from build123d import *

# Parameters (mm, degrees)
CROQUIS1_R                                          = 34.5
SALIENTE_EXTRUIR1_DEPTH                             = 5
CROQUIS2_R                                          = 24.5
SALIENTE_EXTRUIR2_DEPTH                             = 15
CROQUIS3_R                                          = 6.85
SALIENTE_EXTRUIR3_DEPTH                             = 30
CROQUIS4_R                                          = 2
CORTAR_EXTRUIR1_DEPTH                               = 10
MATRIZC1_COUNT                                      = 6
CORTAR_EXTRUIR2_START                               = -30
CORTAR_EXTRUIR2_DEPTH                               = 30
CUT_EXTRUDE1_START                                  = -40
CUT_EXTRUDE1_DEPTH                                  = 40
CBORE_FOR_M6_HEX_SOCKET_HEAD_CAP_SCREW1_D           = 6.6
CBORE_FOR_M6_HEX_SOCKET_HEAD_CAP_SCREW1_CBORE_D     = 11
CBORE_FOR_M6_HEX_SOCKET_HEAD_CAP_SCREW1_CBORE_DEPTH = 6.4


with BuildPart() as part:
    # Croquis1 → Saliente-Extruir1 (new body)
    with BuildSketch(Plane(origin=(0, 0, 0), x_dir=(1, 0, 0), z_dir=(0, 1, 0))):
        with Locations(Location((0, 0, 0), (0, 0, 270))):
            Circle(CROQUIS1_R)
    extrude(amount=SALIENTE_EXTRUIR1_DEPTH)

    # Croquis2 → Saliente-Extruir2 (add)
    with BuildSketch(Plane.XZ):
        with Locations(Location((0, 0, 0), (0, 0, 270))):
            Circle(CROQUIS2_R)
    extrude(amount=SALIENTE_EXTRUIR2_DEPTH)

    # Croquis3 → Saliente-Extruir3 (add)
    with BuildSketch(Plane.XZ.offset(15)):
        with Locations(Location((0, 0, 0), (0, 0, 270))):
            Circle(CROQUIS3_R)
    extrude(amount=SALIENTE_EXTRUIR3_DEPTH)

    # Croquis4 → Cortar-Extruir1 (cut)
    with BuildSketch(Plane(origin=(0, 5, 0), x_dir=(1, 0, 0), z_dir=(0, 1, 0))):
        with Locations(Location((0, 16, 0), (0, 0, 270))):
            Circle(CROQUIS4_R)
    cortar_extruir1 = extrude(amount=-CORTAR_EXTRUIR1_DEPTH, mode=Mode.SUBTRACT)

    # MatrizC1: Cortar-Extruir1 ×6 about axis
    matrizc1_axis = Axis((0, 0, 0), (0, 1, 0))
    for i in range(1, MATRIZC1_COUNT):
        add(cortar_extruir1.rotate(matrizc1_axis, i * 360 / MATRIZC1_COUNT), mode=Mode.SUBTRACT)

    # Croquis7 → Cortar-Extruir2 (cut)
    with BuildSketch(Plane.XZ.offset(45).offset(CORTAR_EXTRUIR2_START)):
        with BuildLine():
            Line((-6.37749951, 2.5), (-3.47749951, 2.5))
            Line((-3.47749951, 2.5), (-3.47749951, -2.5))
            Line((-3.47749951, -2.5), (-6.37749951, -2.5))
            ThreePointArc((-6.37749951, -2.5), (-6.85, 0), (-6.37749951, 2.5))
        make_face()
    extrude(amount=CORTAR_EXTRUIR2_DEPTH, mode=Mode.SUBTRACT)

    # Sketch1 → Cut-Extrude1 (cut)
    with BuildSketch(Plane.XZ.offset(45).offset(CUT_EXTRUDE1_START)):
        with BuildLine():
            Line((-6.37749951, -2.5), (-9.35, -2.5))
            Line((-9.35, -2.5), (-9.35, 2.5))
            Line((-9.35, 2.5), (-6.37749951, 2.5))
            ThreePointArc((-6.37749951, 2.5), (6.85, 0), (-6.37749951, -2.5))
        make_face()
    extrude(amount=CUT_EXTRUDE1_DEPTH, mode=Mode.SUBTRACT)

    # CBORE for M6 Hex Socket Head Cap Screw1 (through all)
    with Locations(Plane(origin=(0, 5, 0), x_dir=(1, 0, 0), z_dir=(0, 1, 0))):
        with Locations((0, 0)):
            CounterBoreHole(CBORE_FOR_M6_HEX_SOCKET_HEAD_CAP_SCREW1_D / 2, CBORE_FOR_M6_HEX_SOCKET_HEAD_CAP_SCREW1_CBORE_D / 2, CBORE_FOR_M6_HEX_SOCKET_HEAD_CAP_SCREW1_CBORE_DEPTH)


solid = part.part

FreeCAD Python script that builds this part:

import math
import FreeCAD as App
import Part
import Sketcher
from FreeCAD import Vector
Q = App.Units.Quantity

doc = App.newDocument("Part")
body = doc.addObject("PartDesign::Body", "Body")

# Sketch on XZ plane
sketch1 = body.newObject("Sketcher::SketchObject", "Sketch")
sketch1.AttachmentSupport = (doc.getObject("XZ_Plane"), [""])
sketch1.MapMode = "FlatFace"
sketch1.addGeometry(Part.Circle(Vector(0, 0, 0), Vector(0, 0, 1), 34), False)
sketch1.addConstraint([
    Sketcher.Constraint("Coincident", 0, 3, -1, 1),
    Sketcher.Constraint("Diameter", 0, Q("69 mm")),
])
pad1 = body.newObject("PartDesign::Pad", "Pad")
pad1.Profile = sketch1
pad1.Length = 5
pad1.Reversed = True

# Sketch on XZ plane
sketch2 = body.newObject("Sketcher::SketchObject", "Sketch001")
sketch2.AttachmentSupport = (doc.getObject("XZ_Plane"), [""])
sketch2.MapMode = "FlatFace"
sketch2.addGeometry(Part.Circle(Vector(0, 0, 0), Vector(0, 0, 1), 24), False)
sketch2.addConstraint([
    Sketcher.Constraint("Coincident", 0, 3, -1, 1),
    Sketcher.Constraint("Diameter", 0, Q("49 mm")),
])
pad2 = body.newObject("PartDesign::Pad", "Pad001")
pad2.Profile = sketch2
pad2.Length = 15

# Sketch on XZ plane
sketch3 = body.newObject("Sketcher::SketchObject", "Sketch002")
sketch3.AttachmentSupport = (doc.getObject("XZ_Plane"), [""])
sketch3.MapMode = "FlatFace"
sketch3.AttachmentOffset = App.Placement(Vector(0, 0, 15), App.Rotation())
sketch3.addGeometry(Part.Circle(Vector(0, 0, 0), Vector(0, 0, 1), 7), False)
sketch3.addConstraint([
    Sketcher.Constraint("Coincident", 0, 3, -1, 1),
    Sketcher.Constraint("Diameter", 0, Q("13.7 mm")),
])
pad3 = body.newObject("PartDesign::Pad", "Pad002")
pad3.Profile = sketch3
pad3.Length = 30

# Sketch on XZ plane
sketch4 = body.newObject("Sketcher::SketchObject", "Sketch003")
sketch4.AttachmentSupport = (doc.getObject("XZ_Plane"), [""])
sketch4.MapMode = "FlatFace"
sketch4.AttachmentOffset = App.Placement(Vector(0, 0, -5), App.Rotation())
sketch4.addGeometry(Part.Circle(Vector(0, -16, 0), Vector(0, 0, 1), 2), False)
sketch4.addConstraint([
    Sketcher.Constraint("PointOnObject", 0, 3, -2),
    Sketcher.Constraint("Diameter", 0, Q("4 mm")),
    Sketcher.Constraint("DistanceY", 0, 3, -1, 1, Q("16 mm")),
])
pocket1 = body.newObject("PartDesign::Pocket", "Pocket")
pocket1.Profile = sketch4
pocket1.Length = 10
pocket1.Reversed = True
doc.recompute()

polarpattern = body.newObject("PartDesign::PolarPattern", "PolarPattern")
polarpattern.Originals = [pocket1]
polarpattern.Axis = (doc.getObject("Y_Axis"), [""])
polarpattern.Angle = 360
polarpattern.Occurrences = 6
body.Tip = polarpattern

# Sketch on XZ plane
sketch5 = body.newObject("Sketcher::SketchObject", "Sketch004")
sketch5.AttachmentSupport = (doc.getObject("XZ_Plane"), [""])
sketch5.MapMode = "FlatFace"
sketch5.AttachmentOffset = App.Placement(Vector(0, 0, 15), App.Rotation())
sketch5.addGeometry([
    Part.LineSegment(Vector(-3.5, 2.5, 0), Vector(-6.4, 2.5, 0)),
    Part.ArcOfCircle(Part.Circle(Vector(0, 0, 0), Vector(0, 0, 1), 6.8), math.radians(159), math.radians(201)),
    Part.LineSegment(Vector(-6.4, -2.5, 0), Vector(-3.5, -2.5, 0)),
    Part.LineSegment(Vector(-3.5, -2.5, 0), Vector(-3.5, 2.5, 0)),
], False)
sketch5.addConstraint([
    Sketcher.Constraint("Coincident", 0, 2, 1, 1),
    Sketcher.Constraint("Coincident", 1, 2, 2, 1),
    Sketcher.Constraint("Coincident", 2, 2, 3, 1),
    Sketcher.Constraint("Coincident", 3, 2, 0, 1),
    Sketcher.Constraint("Horizontal", 0),
    Sketcher.Constraint("Horizontal", 2),
    Sketcher.Constraint("Vertical", 3),
    Sketcher.Constraint("Coincident", 1, 3, -1, 1),
    Sketcher.Constraint("Vertical", 0, 2, 1, 2),
    Sketcher.Constraint("DistanceY", 3, 1, 3, 2, Q("5 mm")),
    Sketcher.Constraint("Radius", 1, Q("6.85 mm")),
    Sketcher.Constraint("DistanceX", 0, 2, 0, 1, Q("2.9 mm")),
])
pocket2 = body.newObject("PartDesign::Pocket", "Pocket001")
pocket2.Profile = sketch5
pocket2.Length = 30
pocket2.Reversed = True

# Sketch on XZ plane
sketch6 = body.newObject("Sketcher::SketchObject", "Sketch005")
sketch6.AttachmentSupport = (doc.getObject("XZ_Plane"), [""])
sketch6.MapMode = "FlatFace"
sketch6.AttachmentOffset = App.Placement(Vector(0, 0, 5), App.Rotation())
sketch6.addGeometry([
    Part.LineSegment(Vector(-9.3, -2.5, 0), Vector(-6.4, -2.5, 0)),
    Part.ArcOfCircle(Part.Circle(Vector(0, 0, 0), Vector(0, 0, 1), 6.8), math.radians(-159), math.radians(159)),
    Part.LineSegment(Vector(-6.4, 2.5, 0), Vector(-9.3, 2.5, 0)),
    Part.LineSegment(Vector(-9.3, 2.5, 0), Vector(-9.3, -2.5, 0)),
], False)
sketch6.addConstraint([
    Sketcher.Constraint("Coincident", 0, 2, 1, 1),
    Sketcher.Constraint("Coincident", 1, 2, 2, 1),
    Sketcher.Constraint("Coincident", 2, 2, 3, 1),
    Sketcher.Constraint("Coincident", 3, 2, 0, 1),
    Sketcher.Constraint("Horizontal", 0),
    Sketcher.Constraint("Horizontal", 2),
    Sketcher.Constraint("Vertical", 3),
    Sketcher.Constraint("Coincident", 1, 3, -1, 1),
    Sketcher.Constraint("Vertical", 0, 2, 1, 2),
    Sketcher.Constraint("DistanceY", 3, 2, 3, 1, Q("5 mm")),
    Sketcher.Constraint("Radius", 1, Q("6.85 mm")),
    Sketcher.Constraint("DistanceX", 2, 2, -1, 1, Q("9.35 mm")),
])
pocket3 = body.newObject("PartDesign::Pocket", "Pocket002")
pocket3.Profile = sketch6
pocket3.Length = 40
pocket3.Reversed = True

# Sketch on XZ plane
sketch7 = body.newObject("Sketcher::SketchObject", "Sketch006")
sketch7.AttachmentSupport = (doc.getObject("XZ_Plane"), [""])
sketch7.MapMode = "FlatFace"
sketch7.AttachmentOffset = App.Placement(Vector(0, 0, -5), App.Rotation())
sketch7.addGeometry(Part.Circle(Vector(0, 0, 0), Vector(0, 0, 1), 3.3), False)
sketch7.addConstraint([
    Sketcher.Constraint("Coincident", 0, 3, -1, 1),
    Sketcher.Constraint("Diameter", 0, Q("6.6 mm")),
])
doc.recompute()
hole = body.newObject("PartDesign::Hole", "Hole")
hole.Profile = sketch7
hole.ThreadType = "None"
hole.Diameter = 6.6
hole.DepthType = "ThroughAll"
hole.HoleCutType = "Counterbore"
hole.HoleCutDiameter = 11
hole.HoleCutDepth = 6.4
hole.Reversed = True

doc.recompute()
